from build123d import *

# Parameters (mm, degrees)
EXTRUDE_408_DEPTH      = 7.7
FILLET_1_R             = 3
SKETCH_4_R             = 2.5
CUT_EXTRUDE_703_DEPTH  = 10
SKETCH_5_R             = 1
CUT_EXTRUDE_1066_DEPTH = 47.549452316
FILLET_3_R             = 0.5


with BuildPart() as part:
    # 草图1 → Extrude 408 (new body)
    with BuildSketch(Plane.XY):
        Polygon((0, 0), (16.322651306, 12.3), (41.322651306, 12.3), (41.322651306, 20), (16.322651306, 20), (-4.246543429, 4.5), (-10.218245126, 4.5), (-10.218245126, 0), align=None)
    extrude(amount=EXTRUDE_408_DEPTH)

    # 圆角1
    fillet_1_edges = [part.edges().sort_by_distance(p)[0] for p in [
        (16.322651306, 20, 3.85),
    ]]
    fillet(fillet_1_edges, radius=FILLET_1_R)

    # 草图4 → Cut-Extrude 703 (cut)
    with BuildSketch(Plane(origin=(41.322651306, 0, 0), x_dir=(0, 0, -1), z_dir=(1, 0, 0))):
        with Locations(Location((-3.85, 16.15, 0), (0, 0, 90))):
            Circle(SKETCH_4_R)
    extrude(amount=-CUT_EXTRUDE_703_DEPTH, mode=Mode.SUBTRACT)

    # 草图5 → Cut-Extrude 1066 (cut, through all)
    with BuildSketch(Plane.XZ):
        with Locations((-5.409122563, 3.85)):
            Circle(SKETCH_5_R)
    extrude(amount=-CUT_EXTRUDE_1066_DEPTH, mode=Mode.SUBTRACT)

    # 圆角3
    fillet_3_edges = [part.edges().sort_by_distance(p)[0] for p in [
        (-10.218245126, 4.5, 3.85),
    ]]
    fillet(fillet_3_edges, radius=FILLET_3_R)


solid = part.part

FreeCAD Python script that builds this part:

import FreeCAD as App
import Part
import Sketcher

V = App.Vector
Q = App.Units.Quantity


def edges_at(feature, points):
    """Names of the edges that pass closest to the given points."""
    edges = feature.Shape.Edges
    near = lambda p: min(range(len(edges)), key=lambda i: edges[i].distToShape(Part.Vertex(*p))[0])
    return sorted({f"Edge{near(p) + 1}" for p in points})


def add_polygon(sketch, points):
    """Adds a closed chain of lines whose ends are joined by coincident constraints."""
    first, n = sketch.GeometryCount, len(points)
    for a, b in zip(points, points[1:] + points[:1]):
        sketch.addGeometry(Part.LineSegment(App.Vector(*a, 0), App.Vector(*b, 0)), False)
    for i in range(n):
        sketch.addConstraint(Sketcher.Constraint("Coincident", first + i, 2, first + (i + 1) % n, 1))

doc = App.newDocument("Part")
body = doc.addObject("PartDesign::Body", "Body")

# Sketch on XY plane
sketch1 = body.newObject("Sketcher::SketchObject", "Sketch")
sketch1.AttachmentSupport = (doc.getObject("XY_Plane"), [""])
sketch1.MapMode = "FlatFace"
add_polygon(sketch1, [(0, 0), (16.322651, 12.3), (41.322651, 12.3), (41.322651, 20), (16.322651, 20), (-4.246543, 4.5), (-10.218245, 4.5), (-10.218245, 0)])  # lines 0-7
sketch1.addConstraint([
    Sketcher.Constraint("Horizontal", 1),
    Sketcher.Constraint("Vertical", 2),
    Sketcher.Constraint("Horizontal", 3),
    Sketcher.Constraint("Horizontal", 5),
    Sketcher.Constraint("Vertical", 6),
    Sketcher.Constraint("Horizontal", 7),
    Sketcher.Constraint("Coincident", 7, 2, -1, 1),
    Sketcher.Constraint("Parallel", 0, 4),
    Sketcher.Constraint("Vertical", 0, 2, 3, 2),
    Sketcher.Constraint("DistanceX", 1, 1, 1, 2, Q("25 mm")),
    Sketcher.Constraint("Angle", 0, Q("37 deg")),
    Sketcher.Constraint("DistanceY", 2, 1, 2, 2, Q("7.7 mm")),
    Sketcher.Constraint("DistanceY", 6, 2, 6, 1, Q("4.5 mm")),
    Sketcher.Constraint("DistanceY", -1, 1, 2, 2, Q("20 mm")),
    Sketcher.Constraint("DistanceX", 5, 2, 5, 1, Q("5.971702 mm")),
])
pad1 = body.newObject("PartDesign::Pad", "Pad")
pad1.Profile = sketch1
pad1.Length = 7.7
doc.recompute()

fillet = body.newObject("PartDesign::Fillet", "Fillet")
fillet.Base = (pad1, edges_at(pad1, [(16.323, 20, 3.85)]))
fillet.Radius = 3

# Sketch on YZ plane
sketch2 = body.newObject("Sketcher::SketchObject", "Sketch001")
sketch2.AttachmentSupport = (doc.getObject("YZ_Plane"), [""])
sketch2.MapMode = "FlatFace"
sketch2.AttachmentOffset = App.Placement(V(0, 0, 41.322651), App.Rotation())
sketch2.addGeometry(Part.Circle(V(16.15, 3.85, 0), V(0, 0, 1), 2.5), False)
sketch2.addConstraint([
    Sketcher.Constraint("Diameter", 0, Q("5 mm")),
    Sketcher.Constraint("DistanceX", -1, 1, 0, 3, Q("16.15 mm")),
    Sketcher.Constraint("DistanceY", -1, 1, 0, 3, Q("3.85 mm")),
])
pocket1 = body.newObject("PartDesign::Pocket", "Pocket")
pocket1.Profile = sketch2
pocket1.Length = 10

# Sketch on XZ plane
sketch3 = body.newObject("Sketcher::SketchObject", "Sketch002")
sketch3.AttachmentSupport = (doc.getObject("XZ_Plane"), [""])
sketch3.MapMode = "FlatFace"
sketch3.addGeometry(Part.Circle(V(-5.409123, 3.85, 0), V(0, 0, 1), 1), False)
sketch3.addConstraint([
    Sketcher.Constraint("Diameter", 0, Q("2 mm")),
    Sketcher.Constraint("DistanceY", -1, 1, 0, 3, Q("3.85 mm")),
    Sketcher.Constraint("DistanceX", 0, 3, -1, 1, Q("5.409123 mm")),
])
pocket2 = body.newObject("PartDesign::Pocket", "Pocket001")
pocket2.Profile = sketch3
pocket2.Type = "ThroughAll"
doc.recompute()

fillet2 = body.newObject("PartDesign::Fillet", "Fillet001")
fillet2.Base = (pocket2, edges_at(pocket2, [(-10.218, 4.5, 3.85)]))
fillet2.Radius = 0.5

doc.recompute()
